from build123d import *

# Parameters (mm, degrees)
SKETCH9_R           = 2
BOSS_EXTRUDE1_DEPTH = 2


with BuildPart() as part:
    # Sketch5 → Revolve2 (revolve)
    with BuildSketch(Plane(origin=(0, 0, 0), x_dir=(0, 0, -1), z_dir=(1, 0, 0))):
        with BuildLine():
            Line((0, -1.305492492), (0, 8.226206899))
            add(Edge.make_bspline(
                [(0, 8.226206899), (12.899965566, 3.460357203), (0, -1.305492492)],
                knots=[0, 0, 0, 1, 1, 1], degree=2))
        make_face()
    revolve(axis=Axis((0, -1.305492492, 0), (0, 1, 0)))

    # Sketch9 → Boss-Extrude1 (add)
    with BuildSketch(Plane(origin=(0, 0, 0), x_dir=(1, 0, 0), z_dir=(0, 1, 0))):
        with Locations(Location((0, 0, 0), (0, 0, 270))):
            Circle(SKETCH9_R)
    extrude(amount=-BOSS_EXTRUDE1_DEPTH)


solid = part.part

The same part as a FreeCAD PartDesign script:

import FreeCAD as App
import Part
import Sketcher

V = App.Vector

doc = App.newDocument("Part")
body = doc.addObject("PartDesign::Body", "Body")

sketch1 = body.newObject("Sketcher::SketchObject", "Sketch")
sketch1.AttachmentSupport = (doc.getObject("YZ_Plane"), [""])
sketch1.MapMode = "FlatFace"
sketch1.addGeometry([
    Part.LineSegment(V(8.226207, 0, 0), V(-1.305492, 0, 0)),
    Part.BSplineCurve([V(8.226207, 0, 0), V(3.460357, -12.899966, 0), V(-1.305492, 0, 0)], [3, 3], [0, 1], False, 2, [1, 1, 1], False),
], False)
sketch1.addConstraint([
    Sketcher.Constraint("Block", 1),
    Sketcher.Constraint("Coincident", 0, 1, 1, 1),
    Sketcher.Constraint("Coincident", 1, 2, 0, 2),
])
revolution = body.newObject("PartDesign::Revolution", "Revolution")
revolution.Profile = sketch1
revolution.ReferenceAxis = (sketch1, ["H_Axis"])
revolution.Angle = 360

sketch2 = body.newObject("Sketcher::SketchObject", "Sketch001")
sketch2.AttachmentSupport = (doc.getObject("XZ_Plane"), [""])
sketch2.MapMode = "FlatFace"
sketch2.addGeometry(Part.Circle(V(0, 0, 0), V(0, 0, 1), 2), False)
sketch2.addConstraint([
    Sketcher.Constraint("Coincident", 0, 3, -1, 1),
    Sketcher.Constraint("Diameter", 0, 4.0),
])
pad1 = body.newObject("PartDesign::Pad", "Pad")
pad1.Profile = sketch2
pad1.Length = 2

doc.recompute()
